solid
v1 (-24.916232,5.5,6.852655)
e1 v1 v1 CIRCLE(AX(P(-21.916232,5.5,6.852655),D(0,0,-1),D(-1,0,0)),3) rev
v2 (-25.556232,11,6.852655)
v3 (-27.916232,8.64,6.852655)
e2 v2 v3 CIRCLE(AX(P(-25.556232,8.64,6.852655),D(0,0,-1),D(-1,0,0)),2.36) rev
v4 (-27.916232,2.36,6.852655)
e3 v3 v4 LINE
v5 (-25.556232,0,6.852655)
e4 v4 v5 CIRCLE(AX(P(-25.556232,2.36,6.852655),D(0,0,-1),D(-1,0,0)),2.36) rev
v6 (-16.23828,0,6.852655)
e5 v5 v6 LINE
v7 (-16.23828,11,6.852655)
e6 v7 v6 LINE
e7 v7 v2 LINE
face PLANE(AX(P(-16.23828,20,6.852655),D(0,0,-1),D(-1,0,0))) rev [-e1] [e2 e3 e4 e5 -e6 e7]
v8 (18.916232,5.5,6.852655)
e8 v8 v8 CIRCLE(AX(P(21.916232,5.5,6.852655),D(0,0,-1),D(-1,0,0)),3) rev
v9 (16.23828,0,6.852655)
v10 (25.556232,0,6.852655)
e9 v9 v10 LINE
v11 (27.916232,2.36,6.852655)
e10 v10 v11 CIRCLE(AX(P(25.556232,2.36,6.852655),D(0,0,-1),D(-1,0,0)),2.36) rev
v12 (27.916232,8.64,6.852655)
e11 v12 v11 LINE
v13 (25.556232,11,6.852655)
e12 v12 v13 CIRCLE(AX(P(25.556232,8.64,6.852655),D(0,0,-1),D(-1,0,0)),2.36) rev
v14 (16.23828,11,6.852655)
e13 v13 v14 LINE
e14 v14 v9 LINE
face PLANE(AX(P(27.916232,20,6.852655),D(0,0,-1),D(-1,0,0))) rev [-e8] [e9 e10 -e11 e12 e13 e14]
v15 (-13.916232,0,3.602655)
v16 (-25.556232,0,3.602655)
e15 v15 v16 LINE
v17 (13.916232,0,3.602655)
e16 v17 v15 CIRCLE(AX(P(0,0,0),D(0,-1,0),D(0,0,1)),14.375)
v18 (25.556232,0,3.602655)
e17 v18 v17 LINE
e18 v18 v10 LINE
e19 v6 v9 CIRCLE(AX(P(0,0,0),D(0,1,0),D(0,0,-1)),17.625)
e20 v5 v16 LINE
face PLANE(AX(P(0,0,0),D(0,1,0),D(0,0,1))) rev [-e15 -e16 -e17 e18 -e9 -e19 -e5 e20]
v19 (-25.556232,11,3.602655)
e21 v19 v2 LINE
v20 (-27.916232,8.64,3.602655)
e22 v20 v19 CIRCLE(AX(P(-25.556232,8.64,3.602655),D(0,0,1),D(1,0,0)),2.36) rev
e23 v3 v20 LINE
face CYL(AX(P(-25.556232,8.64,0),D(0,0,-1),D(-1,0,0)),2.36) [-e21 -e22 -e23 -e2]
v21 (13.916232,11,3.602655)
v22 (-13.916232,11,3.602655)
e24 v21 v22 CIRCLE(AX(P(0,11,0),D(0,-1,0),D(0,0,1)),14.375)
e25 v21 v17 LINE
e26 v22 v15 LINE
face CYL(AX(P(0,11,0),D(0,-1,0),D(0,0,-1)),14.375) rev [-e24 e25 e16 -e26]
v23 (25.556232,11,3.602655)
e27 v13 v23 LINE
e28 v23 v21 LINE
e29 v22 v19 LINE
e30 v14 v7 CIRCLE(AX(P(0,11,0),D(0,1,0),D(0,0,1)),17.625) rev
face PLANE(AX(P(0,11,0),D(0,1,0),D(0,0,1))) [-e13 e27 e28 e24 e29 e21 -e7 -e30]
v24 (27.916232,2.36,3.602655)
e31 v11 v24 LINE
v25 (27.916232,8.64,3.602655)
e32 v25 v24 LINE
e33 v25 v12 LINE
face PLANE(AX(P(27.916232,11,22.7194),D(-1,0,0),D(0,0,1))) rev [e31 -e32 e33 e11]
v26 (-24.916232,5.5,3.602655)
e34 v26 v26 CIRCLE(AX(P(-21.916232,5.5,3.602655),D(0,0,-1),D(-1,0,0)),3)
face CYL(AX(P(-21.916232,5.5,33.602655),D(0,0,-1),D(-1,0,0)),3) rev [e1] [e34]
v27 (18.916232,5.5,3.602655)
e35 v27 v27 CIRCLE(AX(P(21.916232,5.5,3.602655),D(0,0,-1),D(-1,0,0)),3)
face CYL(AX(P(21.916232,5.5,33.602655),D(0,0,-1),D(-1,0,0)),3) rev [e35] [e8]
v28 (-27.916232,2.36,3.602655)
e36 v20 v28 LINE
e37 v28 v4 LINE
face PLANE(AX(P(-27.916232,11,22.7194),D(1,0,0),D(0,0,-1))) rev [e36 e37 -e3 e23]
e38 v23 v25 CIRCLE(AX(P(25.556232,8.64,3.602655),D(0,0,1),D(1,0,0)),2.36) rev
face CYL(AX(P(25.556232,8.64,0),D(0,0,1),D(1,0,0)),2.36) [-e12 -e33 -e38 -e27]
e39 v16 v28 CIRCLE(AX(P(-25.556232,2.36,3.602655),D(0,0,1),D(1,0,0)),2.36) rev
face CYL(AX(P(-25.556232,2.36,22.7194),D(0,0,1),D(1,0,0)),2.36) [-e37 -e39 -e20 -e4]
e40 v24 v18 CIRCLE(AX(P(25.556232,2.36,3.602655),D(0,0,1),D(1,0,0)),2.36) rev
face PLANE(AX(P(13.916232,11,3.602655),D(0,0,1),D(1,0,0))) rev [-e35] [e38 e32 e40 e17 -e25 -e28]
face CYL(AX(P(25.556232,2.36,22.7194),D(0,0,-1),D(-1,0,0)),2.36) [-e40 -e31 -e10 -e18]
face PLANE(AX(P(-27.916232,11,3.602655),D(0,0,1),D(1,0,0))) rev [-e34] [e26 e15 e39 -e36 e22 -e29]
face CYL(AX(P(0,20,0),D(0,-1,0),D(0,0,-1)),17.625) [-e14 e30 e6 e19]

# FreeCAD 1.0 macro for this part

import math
import FreeCAD as App
import Part
import Sketcher

V = App.Vector


def edges_at(feature, points):
    """Names of the edges that pass closest to the given points."""
    edges = feature.Shape.Edges
    near = lambda p: min(range(len(edges)), key=lambda i: edges[i].distToShape(Part.Vertex(*p))[0])
    return sorted({f"Edge{near(p) + 1}" for p in points})

doc = App.newDocument("Part")
body = doc.addObject("PartDesign::Body", "Body")

# Sketch on XZ plane
sketch1 = body.newObject("Sketcher::SketchObject", "Sketch")
sketch1.AttachmentSupport = (doc.getObject("XZ_Plane"), [""])
sketch1.MapMode = "FlatFace"
sketch1.addGeometry([
    Part.LineSegment(V(-28, 23, 0), V(28, 23, 0)),  # 0
    Part.LineSegment(V(28, 23, 0), V(28, 4, 0)),  # 1
    Part.LineSegment(V(28, 4, 0), V(14, 4, 0)),  # 2
    Part.ArcOfCircle(Part.Circle(V(0, 0, 0), V(0, 0, 1), 14), math.radians(15), math.radians(165)),  # 3
    Part.LineSegment(V(-14, 4, 0), V(-28, 4, 0)),  # 4
    Part.LineSegment(V(-28, 4, 0), V(-28, 23, 0)),  # 5
], False)
sketch1.addConstraint([
    Sketcher.Constraint("Coincident", 0, 2, 1, 1),
    Sketcher.Constraint("Coincident", 1, 2, 2, 1),
    Sketcher.Constraint("Coincident", 2, 2, 3, 1),
    Sketcher.Constraint("Coincident", 3, 2, 4, 1),
    Sketcher.Constraint("Coincident", 4, 2, 5, 1),
    Sketcher.Constraint("Coincident", 5, 2, 0, 1),
    Sketcher.Constraint("Horizontal", 0),
    Sketcher.Constraint("Vertical", 1),
    Sketcher.Constraint("Horizontal", 2),
    Sketcher.Constraint("Horizontal", 4),
    Sketcher.Constraint("Vertical", 5),
    Sketcher.Constraint("Coincident", 3, 3, -1, 1),
    Sketcher.Constraint("Symmetric", 1, 2, 4, 2, -2),
    Sketcher.Constraint("DistanceX", 2, 2, 2, 1, 14.0),
    Sketcher.Constraint("Radius", 3, 14.375),
    Sketcher.Constraint("DistanceY", -1, 1, 0, 2, 22.7194),
    Sketcher.Constraint("DistanceX", 0, 1, 0, 2, 55.832463),
])
pad1 = body.newObject("PartDesign::Pad", "Pad")
pad1.Profile = sketch1
pad1.Length = 11
pad1.Reversed = True

# Sketch on XY plane
sketch2 = body.newObject("Sketcher::SketchObject", "Sketch001")
sketch2.AttachmentSupport = (doc.getObject("XY_Plane"), [""])
sketch2.MapMode = "FlatFace"
sketch2.AttachmentOffset = App.Placement(V(0, 0, 3.602655), App.Rotation())
sketch2.addGeometry([
    Part.Circle(V(-21.9, 5.5, 0), V(0, 0, 1), 3),
    Part.Circle(V(21.9, 5.5, 0), V(0, 0, 1), 3),
], False)
sketch2.addConstraint([
    Sketcher.Constraint("Equal", 0, 1),
    Sketcher.Constraint("Symmetric", 0, 3, 1, 3, -2),
    Sketcher.Constraint("Diameter", 0, 6.0),
    Sketcher.Constraint("DistanceY", -1, 1, 0, 3, 5.5),
    Sketcher.Constraint("DistanceX", 0, 3, -1, 1, 21.916232),
])
pocket1 = body.newObject("PartDesign::Pocket", "Pocket")
pocket1.Profile = sketch2
pocket1.Length = 30
pocket1.Reversed = True

# Sketch on XZ plane
sketch3 = body.newObject("Sketcher::SketchObject", "Sketch002")
sketch3.AttachmentSupport = (doc.getObject("XZ_Plane"), [""])
sketch3.MapMode = "FlatFace"
sketch3.addGeometry([
    Part.LineSegment(V(28, 7, 0), V(28, 23, 0)),  # 0
    Part.LineSegment(V(28, 23, 0), V(-28, 23, 0)),  # 1
    Part.LineSegment(V(-28, 23, 0), V(-28, 7, 0)),  # 2
    Part.LineSegment(V(-28, 7, 0), V(-16, 7, 0)),  # 3
    Part.ArcOfCircle(Part.Circle(V(0, 0, 0), V(0, 0, 1), 18), math.radians(23), math.radians(157)),  # 4
    Part.LineSegment(V(16, 7, 0), V(28, 7, 0)),  # 5
], False)
sketch3.addConstraint([
    Sketcher.Constraint("Coincident", 0, 2, 1, 1),
    Sketcher.Constraint("Coincident", 1, 2, 2, 1),
    Sketcher.Constraint("Coincident", 2, 2, 3, 1),
    Sketcher.Constraint("Coincident", 3, 2, 4, 2),
    Sketcher.Constraint("Coincident", 4, 1, 5, 1),
    Sketcher.Constraint("Coincident", 5, 2, 0, 1),
    Sketcher.Constraint("Vertical", 0),
    Sketcher.Constraint("Horizontal", 1),
    Sketcher.Constraint("Vertical", 2),
    Sketcher.Constraint("Horizontal", 3),
    Sketcher.Constraint("Horizontal", 5),
    Sketcher.Constraint("Coincident", 4, 3, -1, 1),
    Sketcher.Constraint("Symmetric", 2, 2, 5, 2, -2),
    Sketcher.Constraint("Radius", 4, 17.625),
    Sketcher.Constraint("DistanceX", 3, 1, 3, 2, 11.677951),
    Sketcher.Constraint("DistanceY", -1, 1, 0, 2, 22.7194),
    Sketcher.Constraint("DistanceX", 1, 2, 1, 1, 55.832463),
])
pocket2 = body.newObject("PartDesign::Pocket", "Pocket001")
pocket2.Profile = sketch3
pocket2.Length = 20
doc.recompute()

fillet = body.newObject("PartDesign::Fillet", "Fillet")
fillet.Base = (pocket2, edges_at(pocket2, [
    (27.916, 0, 5.228),
    (27.916, 11, 5.228),
    (-27.916, 11, 5.228),
    (-27.916, 0, 5.228),
]))
fillet.Radius = 2.36

doc.recompute()
